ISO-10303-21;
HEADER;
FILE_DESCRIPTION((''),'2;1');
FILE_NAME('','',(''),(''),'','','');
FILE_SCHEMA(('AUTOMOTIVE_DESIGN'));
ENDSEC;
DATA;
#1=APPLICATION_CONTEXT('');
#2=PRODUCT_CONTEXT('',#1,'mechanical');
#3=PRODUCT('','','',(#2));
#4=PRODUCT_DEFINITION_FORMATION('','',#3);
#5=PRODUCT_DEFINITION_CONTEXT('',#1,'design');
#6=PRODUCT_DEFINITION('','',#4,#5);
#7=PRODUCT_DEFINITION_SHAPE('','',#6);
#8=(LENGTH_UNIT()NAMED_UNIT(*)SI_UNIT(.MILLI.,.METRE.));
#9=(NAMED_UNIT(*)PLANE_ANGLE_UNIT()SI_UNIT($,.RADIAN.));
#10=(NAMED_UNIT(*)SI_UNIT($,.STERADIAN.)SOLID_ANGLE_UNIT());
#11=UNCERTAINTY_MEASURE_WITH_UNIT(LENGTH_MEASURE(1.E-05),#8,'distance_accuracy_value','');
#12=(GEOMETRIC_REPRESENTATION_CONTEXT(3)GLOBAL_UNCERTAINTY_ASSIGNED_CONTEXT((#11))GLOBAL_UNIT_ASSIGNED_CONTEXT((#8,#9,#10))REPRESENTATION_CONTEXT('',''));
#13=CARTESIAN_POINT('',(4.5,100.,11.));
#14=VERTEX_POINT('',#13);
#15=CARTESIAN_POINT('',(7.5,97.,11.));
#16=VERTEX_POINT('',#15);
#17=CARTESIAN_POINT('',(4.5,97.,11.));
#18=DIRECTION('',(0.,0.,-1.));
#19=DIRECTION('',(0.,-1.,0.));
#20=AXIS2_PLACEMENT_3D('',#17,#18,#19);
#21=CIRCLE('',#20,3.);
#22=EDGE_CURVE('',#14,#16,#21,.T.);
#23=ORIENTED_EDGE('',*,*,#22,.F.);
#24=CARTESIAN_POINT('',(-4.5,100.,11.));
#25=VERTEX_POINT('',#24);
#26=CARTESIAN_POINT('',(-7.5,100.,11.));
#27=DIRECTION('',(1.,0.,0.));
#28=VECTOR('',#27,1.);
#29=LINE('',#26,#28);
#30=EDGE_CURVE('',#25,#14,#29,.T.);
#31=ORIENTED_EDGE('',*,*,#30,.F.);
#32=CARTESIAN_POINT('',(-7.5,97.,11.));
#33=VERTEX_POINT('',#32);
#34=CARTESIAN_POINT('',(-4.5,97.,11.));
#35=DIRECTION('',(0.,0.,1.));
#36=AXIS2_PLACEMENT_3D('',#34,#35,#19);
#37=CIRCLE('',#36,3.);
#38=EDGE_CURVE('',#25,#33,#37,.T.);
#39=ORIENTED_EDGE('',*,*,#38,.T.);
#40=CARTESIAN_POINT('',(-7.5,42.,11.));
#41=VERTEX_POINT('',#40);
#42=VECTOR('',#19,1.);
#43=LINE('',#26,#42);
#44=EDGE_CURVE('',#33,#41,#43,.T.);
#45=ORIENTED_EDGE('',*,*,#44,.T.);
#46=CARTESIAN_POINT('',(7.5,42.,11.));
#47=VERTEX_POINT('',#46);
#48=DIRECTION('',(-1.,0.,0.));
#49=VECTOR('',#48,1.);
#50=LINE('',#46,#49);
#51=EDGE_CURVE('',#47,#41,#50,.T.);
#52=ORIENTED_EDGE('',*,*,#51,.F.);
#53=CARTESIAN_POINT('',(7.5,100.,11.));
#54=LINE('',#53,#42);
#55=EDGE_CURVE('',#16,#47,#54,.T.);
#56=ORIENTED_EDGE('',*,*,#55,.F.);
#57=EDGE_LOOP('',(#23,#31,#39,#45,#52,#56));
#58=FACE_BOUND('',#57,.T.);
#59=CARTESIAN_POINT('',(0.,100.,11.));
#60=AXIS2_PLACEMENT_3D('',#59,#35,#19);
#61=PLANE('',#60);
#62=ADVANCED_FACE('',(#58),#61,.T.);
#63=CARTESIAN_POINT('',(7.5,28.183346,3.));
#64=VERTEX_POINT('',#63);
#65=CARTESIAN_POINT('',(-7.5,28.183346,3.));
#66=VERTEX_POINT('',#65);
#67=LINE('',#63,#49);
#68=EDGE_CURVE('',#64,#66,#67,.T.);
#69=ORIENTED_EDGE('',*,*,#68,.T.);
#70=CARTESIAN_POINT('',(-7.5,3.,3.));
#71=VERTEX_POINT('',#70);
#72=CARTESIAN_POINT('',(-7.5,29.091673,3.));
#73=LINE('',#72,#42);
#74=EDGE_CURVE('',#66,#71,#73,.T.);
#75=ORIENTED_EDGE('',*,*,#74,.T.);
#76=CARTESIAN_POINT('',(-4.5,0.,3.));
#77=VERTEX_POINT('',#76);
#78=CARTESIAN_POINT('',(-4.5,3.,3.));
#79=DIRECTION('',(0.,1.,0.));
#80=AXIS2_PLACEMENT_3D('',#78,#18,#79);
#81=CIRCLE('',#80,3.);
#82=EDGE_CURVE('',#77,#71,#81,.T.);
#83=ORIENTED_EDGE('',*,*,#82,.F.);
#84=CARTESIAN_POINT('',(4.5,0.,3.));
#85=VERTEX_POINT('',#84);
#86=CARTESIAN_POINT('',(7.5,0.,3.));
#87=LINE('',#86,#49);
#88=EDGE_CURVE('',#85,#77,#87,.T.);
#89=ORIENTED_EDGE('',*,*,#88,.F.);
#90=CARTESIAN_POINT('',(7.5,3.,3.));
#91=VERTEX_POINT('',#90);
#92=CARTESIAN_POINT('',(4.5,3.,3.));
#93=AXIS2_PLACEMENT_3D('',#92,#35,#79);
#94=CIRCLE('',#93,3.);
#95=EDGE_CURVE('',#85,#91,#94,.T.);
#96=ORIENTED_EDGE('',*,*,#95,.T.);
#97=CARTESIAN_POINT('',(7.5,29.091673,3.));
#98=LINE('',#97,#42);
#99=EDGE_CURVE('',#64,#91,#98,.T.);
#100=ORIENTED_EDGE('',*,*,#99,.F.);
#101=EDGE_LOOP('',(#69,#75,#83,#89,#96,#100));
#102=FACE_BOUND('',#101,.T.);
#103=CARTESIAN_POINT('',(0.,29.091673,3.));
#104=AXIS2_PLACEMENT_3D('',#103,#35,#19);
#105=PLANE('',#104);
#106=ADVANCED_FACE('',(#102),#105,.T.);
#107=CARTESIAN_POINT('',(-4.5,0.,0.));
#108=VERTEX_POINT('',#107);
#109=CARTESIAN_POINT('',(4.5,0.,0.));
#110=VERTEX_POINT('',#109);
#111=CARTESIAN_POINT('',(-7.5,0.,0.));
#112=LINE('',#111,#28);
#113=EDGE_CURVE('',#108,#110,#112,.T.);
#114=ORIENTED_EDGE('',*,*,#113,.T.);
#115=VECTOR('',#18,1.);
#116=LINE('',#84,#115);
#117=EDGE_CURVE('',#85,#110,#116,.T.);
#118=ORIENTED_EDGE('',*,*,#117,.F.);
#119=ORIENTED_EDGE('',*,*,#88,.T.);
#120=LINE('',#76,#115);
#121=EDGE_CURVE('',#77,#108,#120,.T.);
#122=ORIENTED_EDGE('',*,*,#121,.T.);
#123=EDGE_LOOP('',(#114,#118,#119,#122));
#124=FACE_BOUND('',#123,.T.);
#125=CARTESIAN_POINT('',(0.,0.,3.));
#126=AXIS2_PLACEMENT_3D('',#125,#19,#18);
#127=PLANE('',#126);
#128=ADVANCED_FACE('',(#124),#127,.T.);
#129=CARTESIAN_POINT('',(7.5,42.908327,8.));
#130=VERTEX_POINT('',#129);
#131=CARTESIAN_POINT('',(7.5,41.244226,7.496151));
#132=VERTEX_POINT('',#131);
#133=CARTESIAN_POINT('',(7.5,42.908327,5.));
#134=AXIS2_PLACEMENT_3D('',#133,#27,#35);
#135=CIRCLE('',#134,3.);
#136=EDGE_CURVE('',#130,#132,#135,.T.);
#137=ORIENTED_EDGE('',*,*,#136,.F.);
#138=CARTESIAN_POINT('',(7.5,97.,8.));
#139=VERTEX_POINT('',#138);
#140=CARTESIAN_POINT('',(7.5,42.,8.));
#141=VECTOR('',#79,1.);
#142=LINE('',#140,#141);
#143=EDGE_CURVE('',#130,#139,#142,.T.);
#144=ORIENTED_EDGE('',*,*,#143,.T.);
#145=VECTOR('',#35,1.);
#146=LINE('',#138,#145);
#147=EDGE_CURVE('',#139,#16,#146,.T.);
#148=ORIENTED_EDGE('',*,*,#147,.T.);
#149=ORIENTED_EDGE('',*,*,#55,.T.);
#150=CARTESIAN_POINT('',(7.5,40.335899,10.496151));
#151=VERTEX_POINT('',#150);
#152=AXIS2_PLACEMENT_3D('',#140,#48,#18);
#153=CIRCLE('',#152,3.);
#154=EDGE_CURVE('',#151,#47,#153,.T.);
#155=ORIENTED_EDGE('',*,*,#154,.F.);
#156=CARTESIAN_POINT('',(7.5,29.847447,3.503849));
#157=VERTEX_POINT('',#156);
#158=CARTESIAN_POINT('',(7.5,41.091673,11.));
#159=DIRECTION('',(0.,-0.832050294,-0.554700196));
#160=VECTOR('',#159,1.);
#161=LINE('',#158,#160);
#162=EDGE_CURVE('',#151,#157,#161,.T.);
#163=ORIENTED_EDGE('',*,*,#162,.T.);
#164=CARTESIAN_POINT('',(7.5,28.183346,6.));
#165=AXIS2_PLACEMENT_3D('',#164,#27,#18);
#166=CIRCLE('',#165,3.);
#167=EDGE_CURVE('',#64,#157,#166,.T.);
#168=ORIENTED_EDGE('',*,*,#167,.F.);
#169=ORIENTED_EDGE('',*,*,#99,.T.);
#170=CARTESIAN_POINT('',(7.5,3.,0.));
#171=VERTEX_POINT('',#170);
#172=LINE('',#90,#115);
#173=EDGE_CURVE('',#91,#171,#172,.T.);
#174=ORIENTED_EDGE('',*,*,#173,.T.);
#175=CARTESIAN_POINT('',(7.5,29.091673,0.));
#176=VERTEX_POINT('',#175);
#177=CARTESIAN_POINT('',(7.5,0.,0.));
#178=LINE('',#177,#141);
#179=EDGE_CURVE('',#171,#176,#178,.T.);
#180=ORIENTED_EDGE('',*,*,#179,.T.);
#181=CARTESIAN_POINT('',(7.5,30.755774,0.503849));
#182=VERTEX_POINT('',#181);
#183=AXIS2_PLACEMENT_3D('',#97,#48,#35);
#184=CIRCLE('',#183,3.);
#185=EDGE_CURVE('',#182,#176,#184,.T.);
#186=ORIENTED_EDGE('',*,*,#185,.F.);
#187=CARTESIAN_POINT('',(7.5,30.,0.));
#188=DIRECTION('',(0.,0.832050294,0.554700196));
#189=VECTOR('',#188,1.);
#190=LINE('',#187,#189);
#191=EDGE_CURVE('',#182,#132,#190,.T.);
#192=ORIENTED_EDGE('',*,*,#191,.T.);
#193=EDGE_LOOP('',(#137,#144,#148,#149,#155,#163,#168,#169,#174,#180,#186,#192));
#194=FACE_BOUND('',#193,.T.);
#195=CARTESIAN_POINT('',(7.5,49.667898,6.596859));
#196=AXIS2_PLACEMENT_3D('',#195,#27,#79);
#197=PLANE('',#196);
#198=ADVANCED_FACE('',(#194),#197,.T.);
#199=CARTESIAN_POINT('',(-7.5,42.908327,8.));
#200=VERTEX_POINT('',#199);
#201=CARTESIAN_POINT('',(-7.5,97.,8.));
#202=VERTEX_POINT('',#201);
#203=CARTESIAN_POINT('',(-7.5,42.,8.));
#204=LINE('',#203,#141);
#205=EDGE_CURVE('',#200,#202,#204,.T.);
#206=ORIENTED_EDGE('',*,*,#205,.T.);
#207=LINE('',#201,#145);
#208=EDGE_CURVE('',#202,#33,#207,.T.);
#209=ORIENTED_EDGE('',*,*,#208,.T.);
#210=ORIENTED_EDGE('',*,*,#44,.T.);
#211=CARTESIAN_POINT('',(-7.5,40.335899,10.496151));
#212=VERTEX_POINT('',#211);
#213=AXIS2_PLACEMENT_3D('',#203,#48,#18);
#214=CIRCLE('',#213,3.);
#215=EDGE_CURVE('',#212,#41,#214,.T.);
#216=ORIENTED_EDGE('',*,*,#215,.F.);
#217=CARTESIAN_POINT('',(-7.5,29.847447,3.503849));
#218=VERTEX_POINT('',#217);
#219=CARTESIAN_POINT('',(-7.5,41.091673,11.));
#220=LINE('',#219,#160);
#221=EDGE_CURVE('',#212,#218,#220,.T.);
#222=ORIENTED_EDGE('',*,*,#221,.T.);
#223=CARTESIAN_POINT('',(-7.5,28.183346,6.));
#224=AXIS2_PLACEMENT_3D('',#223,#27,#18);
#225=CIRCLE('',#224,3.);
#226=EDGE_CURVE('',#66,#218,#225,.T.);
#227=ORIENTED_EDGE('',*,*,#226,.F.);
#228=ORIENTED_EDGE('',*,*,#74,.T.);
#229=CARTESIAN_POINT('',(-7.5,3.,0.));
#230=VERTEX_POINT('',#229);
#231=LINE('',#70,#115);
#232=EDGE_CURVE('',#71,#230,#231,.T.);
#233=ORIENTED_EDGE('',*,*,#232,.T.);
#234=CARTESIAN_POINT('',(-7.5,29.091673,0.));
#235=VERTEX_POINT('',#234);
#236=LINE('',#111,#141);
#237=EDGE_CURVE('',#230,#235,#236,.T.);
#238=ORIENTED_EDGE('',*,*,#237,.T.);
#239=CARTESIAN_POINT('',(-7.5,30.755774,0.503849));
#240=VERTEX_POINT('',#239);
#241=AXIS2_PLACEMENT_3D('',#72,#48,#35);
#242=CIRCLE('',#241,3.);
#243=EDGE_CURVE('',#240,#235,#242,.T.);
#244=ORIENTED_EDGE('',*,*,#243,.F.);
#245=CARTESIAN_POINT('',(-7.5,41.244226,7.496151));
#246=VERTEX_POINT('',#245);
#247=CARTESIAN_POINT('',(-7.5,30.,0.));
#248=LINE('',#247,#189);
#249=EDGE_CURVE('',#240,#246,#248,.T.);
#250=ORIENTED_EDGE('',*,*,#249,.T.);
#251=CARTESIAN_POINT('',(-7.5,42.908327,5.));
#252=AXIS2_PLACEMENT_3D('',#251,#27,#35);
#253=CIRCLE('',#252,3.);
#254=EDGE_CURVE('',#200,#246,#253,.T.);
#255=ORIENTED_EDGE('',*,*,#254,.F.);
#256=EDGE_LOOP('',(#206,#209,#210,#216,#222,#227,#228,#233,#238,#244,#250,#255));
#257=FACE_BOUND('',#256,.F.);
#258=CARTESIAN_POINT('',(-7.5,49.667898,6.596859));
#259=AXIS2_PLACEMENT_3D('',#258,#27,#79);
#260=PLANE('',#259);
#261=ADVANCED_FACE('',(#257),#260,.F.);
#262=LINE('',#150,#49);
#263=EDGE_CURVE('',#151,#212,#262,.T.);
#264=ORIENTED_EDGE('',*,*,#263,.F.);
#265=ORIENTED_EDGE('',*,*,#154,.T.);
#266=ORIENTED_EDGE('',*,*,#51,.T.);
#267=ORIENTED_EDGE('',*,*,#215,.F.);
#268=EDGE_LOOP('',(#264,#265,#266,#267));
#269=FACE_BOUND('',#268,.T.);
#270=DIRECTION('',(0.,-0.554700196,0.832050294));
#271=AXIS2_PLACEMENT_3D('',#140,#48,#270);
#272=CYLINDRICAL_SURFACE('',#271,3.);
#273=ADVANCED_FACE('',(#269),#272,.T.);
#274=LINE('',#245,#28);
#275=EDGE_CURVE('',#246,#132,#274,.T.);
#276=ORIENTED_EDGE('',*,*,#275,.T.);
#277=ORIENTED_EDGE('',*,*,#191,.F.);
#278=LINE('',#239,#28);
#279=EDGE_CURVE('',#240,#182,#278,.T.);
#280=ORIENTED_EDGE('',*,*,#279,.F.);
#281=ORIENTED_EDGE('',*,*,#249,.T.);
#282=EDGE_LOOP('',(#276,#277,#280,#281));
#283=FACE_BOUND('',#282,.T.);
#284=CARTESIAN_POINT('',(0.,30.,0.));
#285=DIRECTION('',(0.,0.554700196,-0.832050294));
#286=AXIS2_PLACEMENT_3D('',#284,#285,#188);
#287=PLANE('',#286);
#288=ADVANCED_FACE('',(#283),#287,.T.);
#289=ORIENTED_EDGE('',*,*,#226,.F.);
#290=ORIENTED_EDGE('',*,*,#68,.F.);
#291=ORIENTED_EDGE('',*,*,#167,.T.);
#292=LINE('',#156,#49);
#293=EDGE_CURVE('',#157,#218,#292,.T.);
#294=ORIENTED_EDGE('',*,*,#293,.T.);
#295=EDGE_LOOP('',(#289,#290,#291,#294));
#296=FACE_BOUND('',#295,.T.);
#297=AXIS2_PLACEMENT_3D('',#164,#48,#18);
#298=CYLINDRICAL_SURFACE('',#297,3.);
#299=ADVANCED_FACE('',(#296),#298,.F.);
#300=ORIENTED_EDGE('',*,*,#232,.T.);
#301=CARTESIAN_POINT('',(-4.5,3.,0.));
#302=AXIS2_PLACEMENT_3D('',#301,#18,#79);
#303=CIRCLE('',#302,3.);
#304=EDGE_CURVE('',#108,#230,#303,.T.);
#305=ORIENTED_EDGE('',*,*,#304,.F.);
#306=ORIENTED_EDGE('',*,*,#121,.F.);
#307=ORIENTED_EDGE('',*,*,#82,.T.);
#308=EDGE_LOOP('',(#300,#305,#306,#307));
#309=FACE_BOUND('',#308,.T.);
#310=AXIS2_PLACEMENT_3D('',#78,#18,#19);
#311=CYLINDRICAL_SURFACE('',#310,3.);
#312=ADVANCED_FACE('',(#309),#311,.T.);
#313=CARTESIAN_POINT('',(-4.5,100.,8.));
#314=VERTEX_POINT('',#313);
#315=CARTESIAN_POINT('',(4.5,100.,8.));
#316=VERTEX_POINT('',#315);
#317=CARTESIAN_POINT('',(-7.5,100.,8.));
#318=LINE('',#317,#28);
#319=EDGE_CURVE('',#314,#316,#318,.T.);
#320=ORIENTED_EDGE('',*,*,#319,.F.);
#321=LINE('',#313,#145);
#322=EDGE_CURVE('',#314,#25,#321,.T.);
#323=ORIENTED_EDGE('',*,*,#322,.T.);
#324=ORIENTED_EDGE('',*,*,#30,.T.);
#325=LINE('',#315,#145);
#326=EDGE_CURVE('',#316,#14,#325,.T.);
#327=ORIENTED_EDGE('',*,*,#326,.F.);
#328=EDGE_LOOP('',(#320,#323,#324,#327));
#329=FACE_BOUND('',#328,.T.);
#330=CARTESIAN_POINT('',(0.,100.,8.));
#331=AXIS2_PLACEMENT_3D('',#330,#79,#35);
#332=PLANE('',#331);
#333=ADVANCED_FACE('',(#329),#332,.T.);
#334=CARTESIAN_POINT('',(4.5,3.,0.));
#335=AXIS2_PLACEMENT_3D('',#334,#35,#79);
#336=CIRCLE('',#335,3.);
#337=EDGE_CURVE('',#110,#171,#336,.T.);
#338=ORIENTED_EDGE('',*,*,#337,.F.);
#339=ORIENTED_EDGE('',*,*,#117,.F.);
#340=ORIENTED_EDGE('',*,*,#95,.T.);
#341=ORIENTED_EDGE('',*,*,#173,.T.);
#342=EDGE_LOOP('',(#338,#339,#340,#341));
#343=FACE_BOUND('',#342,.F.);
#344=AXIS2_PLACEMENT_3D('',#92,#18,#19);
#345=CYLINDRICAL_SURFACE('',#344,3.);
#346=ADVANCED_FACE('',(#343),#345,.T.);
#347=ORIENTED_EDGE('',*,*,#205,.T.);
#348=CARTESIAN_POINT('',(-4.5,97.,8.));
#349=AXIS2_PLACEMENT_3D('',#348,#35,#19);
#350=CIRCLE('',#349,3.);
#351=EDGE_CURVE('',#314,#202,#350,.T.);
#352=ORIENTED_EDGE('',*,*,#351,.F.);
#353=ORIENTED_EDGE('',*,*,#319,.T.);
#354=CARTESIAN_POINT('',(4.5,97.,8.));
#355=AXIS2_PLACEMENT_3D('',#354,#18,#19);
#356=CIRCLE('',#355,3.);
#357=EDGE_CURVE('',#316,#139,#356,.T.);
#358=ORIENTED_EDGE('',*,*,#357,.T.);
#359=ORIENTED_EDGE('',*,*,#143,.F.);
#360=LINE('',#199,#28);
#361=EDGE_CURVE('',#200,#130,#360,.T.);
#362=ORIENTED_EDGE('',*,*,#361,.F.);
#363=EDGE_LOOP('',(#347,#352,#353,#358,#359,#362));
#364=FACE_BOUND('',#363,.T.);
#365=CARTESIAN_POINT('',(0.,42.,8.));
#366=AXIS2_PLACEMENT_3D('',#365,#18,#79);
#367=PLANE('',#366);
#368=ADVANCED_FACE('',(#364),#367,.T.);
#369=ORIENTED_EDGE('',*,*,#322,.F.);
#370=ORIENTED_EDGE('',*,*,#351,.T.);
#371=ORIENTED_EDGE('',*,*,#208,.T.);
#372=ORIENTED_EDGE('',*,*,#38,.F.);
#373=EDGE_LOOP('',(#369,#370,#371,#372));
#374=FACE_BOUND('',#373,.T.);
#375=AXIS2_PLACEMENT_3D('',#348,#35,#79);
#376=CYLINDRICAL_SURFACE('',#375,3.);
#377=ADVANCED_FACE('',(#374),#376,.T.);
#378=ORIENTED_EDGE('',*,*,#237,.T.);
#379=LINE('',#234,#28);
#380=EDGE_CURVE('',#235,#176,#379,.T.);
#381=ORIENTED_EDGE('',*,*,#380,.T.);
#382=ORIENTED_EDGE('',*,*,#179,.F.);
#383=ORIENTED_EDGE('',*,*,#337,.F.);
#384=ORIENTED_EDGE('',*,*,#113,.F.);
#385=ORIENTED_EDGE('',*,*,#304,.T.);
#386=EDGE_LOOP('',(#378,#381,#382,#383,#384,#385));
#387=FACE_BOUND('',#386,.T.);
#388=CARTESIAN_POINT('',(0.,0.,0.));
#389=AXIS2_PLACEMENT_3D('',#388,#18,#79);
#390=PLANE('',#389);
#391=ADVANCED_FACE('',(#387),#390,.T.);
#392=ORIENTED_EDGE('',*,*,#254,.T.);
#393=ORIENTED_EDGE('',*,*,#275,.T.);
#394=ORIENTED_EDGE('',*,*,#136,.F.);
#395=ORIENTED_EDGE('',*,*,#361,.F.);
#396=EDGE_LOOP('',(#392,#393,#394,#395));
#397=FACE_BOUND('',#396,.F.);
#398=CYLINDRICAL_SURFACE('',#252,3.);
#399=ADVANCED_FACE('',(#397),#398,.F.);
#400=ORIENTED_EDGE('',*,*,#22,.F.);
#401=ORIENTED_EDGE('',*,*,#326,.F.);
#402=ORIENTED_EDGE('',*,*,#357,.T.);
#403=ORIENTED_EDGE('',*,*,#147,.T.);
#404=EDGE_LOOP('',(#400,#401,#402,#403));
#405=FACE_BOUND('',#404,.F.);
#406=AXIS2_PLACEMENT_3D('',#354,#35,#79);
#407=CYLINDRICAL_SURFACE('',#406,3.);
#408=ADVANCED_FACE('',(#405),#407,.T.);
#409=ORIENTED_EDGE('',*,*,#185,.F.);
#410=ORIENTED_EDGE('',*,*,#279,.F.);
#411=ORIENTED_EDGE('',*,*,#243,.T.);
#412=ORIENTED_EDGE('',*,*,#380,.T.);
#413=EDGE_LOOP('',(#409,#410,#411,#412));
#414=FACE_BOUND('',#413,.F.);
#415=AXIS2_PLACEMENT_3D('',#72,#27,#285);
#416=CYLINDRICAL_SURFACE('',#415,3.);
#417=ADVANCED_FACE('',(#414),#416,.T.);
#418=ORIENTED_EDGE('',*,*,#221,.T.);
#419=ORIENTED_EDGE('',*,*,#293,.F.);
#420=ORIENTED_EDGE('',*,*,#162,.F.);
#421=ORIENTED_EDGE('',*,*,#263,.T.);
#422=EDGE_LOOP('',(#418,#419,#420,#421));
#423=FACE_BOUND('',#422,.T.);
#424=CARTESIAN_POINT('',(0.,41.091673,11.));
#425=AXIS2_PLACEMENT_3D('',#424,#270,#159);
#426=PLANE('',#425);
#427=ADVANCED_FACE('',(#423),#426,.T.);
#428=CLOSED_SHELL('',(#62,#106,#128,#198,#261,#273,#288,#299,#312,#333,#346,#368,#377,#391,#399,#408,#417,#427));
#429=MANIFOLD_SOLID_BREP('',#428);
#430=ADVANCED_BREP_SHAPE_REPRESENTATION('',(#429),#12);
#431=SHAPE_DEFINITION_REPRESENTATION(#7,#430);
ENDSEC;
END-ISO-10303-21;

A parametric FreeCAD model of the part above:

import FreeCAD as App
import Part
import Sketcher
from FreeCAD import Vector


def edges_at(feature, points):
    """Names of the edges that pass closest to the given points."""
    edges = feature.Shape.Edges
    near = lambda p: min(range(len(edges)), key=lambda i: edges[i].distToShape(Part.Vertex(*p))[0])
    return sorted({f"Edge{near(p) + 1}" for p in points})

doc = App.newDocument("Part")
body = doc.addObject("PartDesign::Body", "Body")

sketch1 = body.newObject("Sketcher::SketchObject", "Sketch")
sketch1.AttachmentSupport = (doc.getObject("YZ_Plane"), [""])
sketch1.MapMode = "FlatFace"
sketch1.addGeometry(Part.LineSegment(Vector(0, 3, 0), Vector(0, 0, 0)), False)
sketch1.addGeometry(Part.LineSegment(Vector(0, 0, 0), Vector(30, 0, 0)), False)
sketch1.addGeometry(Part.LineSegment(Vector(30, 0, 0), Vector(42, 8, 0)), False)
sketch1.addGeometry(Part.LineSegment(Vector(42, 8, 0), Vector(100, 8, 0)), False)
sketch1.addGeometry(Part.LineSegment(Vector(100, 8, 0), Vector(100, 11, 0)), False)
sketch1.addGeometry(Part.LineSegment(Vector(100, 11, 0), Vector(41.091673, 11, 0)), False)
sketch1.addGeometry(Part.LineSegment(Vector(41.091673, 11, 0), Vector(29.091673, 3, 0)), False)
sketch1.addGeometry(Part.LineSegment(Vector(29.091673, 3, 0), Vector(0, 3, 0)), False)
sketch1.addConstraint(Sketcher.Constraint("Coincident", 0, 2, 1, 1))
sketch1.addConstraint(Sketcher.Constraint("Coincident", 1, 2, 2, 1))
sketch1.addConstraint(Sketcher.Constraint("Coincident", 2, 2, 3, 1))
sketch1.addConstraint(Sketcher.Constraint("Coincident", 3, 2, 4, 1))
sketch1.addConstraint(Sketcher.Constraint("Coincident", 4, 2, 5, 1))
sketch1.addConstraint(Sketcher.Constraint("Coincident", 5, 2, 6, 1))
sketch1.addConstraint(Sketcher.Constraint("Coincident", 6, 2, 7, 1))
sketch1.addConstraint(Sketcher.Constraint("Coincident", 7, 2, 0, 1))
sketch1.addConstraint(Sketcher.Constraint("Vertical", 0))
sketch1.addConstraint(Sketcher.Constraint("Horizontal", 1))
sketch1.addConstraint(Sketcher.Constraint("Horizontal", 3))
sketch1.addConstraint(Sketcher.Constraint("Vertical", 4))
sketch1.addConstraint(Sketcher.Constraint("Horizontal", 5))
sketch1.addConstraint(Sketcher.Constraint("Horizontal", 7))
sketch1.addConstraint(Sketcher.Constraint("Coincident", 0, 2, -1, 1))
sketch1.addConstraint(Sketcher.Constraint("Parallel", 2, 6))
sketch1.addConstraint(Sketcher.Constraint("Equal", 0, 4))
sketch1.addConstraint(Sketcher.Constraint("DistanceX", 1, 1, 1, 2, 30.0))
sketch1.addConstraint(Sketcher.Constraint("DistanceX", 3, 1, 3, 2, 58.0))
sketch1.addConstraint(Sketcher.Constraint("DistanceY", 0, 2, 0, 1, 3.0))
sketch1.addConstraint(Sketcher.Constraint("DistanceX", -1, 1, 2, 2, 42.0))
sketch1.addConstraint(Sketcher.Constraint("DistanceY", -1, 1, 2, 2, 8.0))
sketch1.addConstraint(Sketcher.Constraint("DistanceX", 5, 2, 5, 1, 58.908327))
pad1 = body.newObject("PartDesign::Pad", "Pad")
pad1.Profile = sketch1
pad1.Length = 15
pad1.Midplane = True
doc.recompute()

fillet = body.newObject("PartDesign::Fillet", "Fillet")
fillet.Base = (pad1, edges_at(pad1, [
    (7.5, 0, 1.5),
    (-7.5, 0, 1.5),
    (0, 41.092, 11),
    (0, 29.092, 3),
    (0, 30, 0),
    (0, 42, 8),
    (7.5, 100, 9.5),
    (-7.5, 100, 9.5),
]))
fillet.Radius = 3

doc.recompute()
